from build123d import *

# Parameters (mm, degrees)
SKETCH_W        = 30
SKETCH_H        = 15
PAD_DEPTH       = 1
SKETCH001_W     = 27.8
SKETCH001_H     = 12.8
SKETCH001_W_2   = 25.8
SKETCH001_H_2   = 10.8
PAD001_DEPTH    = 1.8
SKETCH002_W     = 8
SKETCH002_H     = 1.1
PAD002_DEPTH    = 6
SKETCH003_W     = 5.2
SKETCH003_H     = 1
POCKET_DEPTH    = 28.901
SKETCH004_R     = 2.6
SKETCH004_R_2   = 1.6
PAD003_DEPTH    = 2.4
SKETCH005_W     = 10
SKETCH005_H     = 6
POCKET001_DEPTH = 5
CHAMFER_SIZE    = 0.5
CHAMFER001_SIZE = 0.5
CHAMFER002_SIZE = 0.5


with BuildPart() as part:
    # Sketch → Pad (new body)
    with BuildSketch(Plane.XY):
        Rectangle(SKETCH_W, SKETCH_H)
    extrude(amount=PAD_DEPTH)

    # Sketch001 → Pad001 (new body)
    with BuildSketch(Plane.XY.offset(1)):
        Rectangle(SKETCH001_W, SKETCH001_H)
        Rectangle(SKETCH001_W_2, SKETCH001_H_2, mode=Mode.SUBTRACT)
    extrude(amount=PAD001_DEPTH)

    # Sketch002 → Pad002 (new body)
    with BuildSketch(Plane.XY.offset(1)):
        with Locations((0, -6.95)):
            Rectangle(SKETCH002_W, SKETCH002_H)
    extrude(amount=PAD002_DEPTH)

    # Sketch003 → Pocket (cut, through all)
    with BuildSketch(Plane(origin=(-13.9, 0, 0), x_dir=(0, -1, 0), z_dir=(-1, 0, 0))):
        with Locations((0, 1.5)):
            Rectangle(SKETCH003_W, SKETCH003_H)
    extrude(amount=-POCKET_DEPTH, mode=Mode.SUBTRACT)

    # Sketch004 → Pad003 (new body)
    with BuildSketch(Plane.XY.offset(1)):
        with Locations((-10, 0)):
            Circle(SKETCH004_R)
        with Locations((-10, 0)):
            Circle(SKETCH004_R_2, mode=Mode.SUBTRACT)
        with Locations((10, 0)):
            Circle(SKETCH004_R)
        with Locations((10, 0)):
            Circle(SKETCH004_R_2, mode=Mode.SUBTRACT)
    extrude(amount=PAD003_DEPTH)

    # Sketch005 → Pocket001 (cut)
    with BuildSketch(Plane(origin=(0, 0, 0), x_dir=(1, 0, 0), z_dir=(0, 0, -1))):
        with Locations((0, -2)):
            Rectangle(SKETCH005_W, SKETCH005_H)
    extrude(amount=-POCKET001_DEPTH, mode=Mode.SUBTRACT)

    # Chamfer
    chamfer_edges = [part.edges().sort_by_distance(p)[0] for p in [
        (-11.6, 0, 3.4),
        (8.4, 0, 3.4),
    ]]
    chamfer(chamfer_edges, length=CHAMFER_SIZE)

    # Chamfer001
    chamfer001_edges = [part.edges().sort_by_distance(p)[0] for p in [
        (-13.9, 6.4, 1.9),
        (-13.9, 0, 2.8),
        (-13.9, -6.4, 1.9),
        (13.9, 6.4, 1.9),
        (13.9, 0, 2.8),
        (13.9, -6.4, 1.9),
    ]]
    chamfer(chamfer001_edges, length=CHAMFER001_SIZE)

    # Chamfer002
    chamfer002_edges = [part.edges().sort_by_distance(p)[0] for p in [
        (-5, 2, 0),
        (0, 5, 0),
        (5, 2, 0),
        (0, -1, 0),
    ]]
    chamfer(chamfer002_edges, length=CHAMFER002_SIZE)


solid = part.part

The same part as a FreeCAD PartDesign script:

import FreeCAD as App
import Part
import Sketcher
from FreeCAD import Vector


def edges_at(feature, points):
    """Names of the edges that pass closest to the given points."""
    edges = feature.Shape.Edges
    near = lambda p: min(range(len(edges)), key=lambda i: edges[i].distToShape(Part.Vertex(*p))[0])
    return sorted({f"Edge{near(p) + 1}" for p in points})


def add_polygon(sketch, points):
    """Adds a closed chain of lines whose ends are joined by coincident constraints."""
    first, n = sketch.GeometryCount, len(points)
    for a, b in zip(points, points[1:] + points[:1]):
        sketch.addGeometry(Part.LineSegment(App.Vector(*a, 0), App.Vector(*b, 0)), False)
    for i in range(n):
        sketch.addConstraint(Sketcher.Constraint("Coincident", first + i, 2, first + (i + 1) % n, 1))

doc = App.newDocument("Part")
body = doc.addObject("PartDesign::Body", "Body")

# Sketch on XY plane
sketch1 = doc.addObject("Sketcher::SketchObject", "Sketch")
body.addObject(sketch1)
sketch1.AttachmentSupport = (doc.XY_Plane, [""])
sketch1.MapMode = "FlatFace"
add_polygon(sketch1, [(-15, 8), (-15, -8), (15, -8), (15, 8)])  # lines 0-3
sketch1.addConstraint([
    Sketcher.Constraint("Vertical", 0),
    Sketcher.Constraint("Horizontal", 1),
    Sketcher.Constraint("Vertical", 2),
    Sketcher.Constraint("Horizontal", 3),
    Sketcher.Constraint("Symmetric", 0, 2, 2, 2, -1, 1),
    Sketcher.Constraint("DistanceX", 1, 1, 1, 2, 30.0),
    Sketcher.Constraint("DistanceY", 0, 2, 0, 1, 15.0),
])
pad1 = doc.addObject("PartDesign::Pad", "Pad")
body.addObject(pad1)
pad1.Profile = sketch1
pad1.Length = 1

# Sketch on XY plane
sketch2 = doc.addObject("Sketcher::SketchObject", "Sketch001")
body.addObject(sketch2)
sketch2.AttachmentSupport = (doc.XY_Plane, [""])
sketch2.MapMode = "FlatFace"
sketch2.AttachmentOffset = App.Placement(Vector(0, 0, 1), App.Rotation())
add_polygon(sketch2, [(-14, 6), (-14, -6), (14, -6), (14, 6)])  # lines 0-3
add_polygon(sketch2, [(13, -5), (-13, -5), (-13, 5), (13, 5)])  # lines 4-7
sketch2.addConstraint([
    Sketcher.Constraint("Vertical", 0),
    Sketcher.Constraint("Horizontal", 1),
    Sketcher.Constraint("Vertical", 2),
    Sketcher.Constraint("Horizontal", 3),
    Sketcher.Constraint("Horizontal", 4),
    Sketcher.Constraint("Vertical", 5),
    Sketcher.Constraint("Horizontal", 6),
    Sketcher.Constraint("Vertical", 7),
    Sketcher.Constraint("Symmetric", 0, 2, 2, 2, -1, 1),
    Sketcher.Constraint("Symmetric", 4, 2, 6, 2, -1, 1),
    Sketcher.Constraint("DistanceX", 1, 1, 1, 2, 27.8),
    Sketcher.Constraint("DistanceX", 4, 2, 4, 1, 25.8),
    Sketcher.Constraint("DistanceY", 0, 2, 0, 1, 12.8),
    Sketcher.Constraint("DistanceY", 5, 1, 5, 2, 10.8),
])
pad2 = doc.addObject("PartDesign::Pad", "Pad001")
body.addObject(pad2)
pad2.Profile = sketch2
pad2.Length = 1.8

# Sketch on XY plane
sketch3 = doc.addObject("Sketcher::SketchObject", "Sketch002")
body.addObject(sketch3)
sketch3.AttachmentSupport = (doc.XY_Plane, [""])
sketch3.MapMode = "FlatFace"
sketch3.AttachmentOffset = App.Placement(Vector(0, 0, 1), App.Rotation())
add_polygon(sketch3, [(-4, -6.4), (-4, -7.5), (4, -7.5), (4, -6.4)])  # lines 0-3
sketch3.addConstraint([
    Sketcher.Constraint("Vertical", 0),
    Sketcher.Constraint("Horizontal", 1),
    Sketcher.Constraint("Vertical", 2),
    Sketcher.Constraint("Horizontal", 3),
    Sketcher.Constraint("DistanceX", 1, 1, 1, 2, 8.0),
    Sketcher.Constraint("DistanceY", 0, 2, 0, 1, 1.1),
    Sketcher.Constraint("DistanceX", 0, 2, -1, 1, 4.0),
    Sketcher.Constraint("DistanceY", 0, 2, -1, 1, 7.5),
])
pad3 = doc.addObject("PartDesign::Pad", "Pad002")
body.addObject(pad3)
pad3.Profile = sketch3
pad3.Length = 6

# Sketch on YZ plane
sketch4 = doc.addObject("Sketcher::SketchObject", "Sketch003")
body.addObject(sketch4)
sketch4.AttachmentSupport = (doc.YZ_Plane, [""])
sketch4.MapMode = "FlatFace"
sketch4.AttachmentOffset = App.Placement(Vector(0, 0, -13.9), App.Rotation())
add_polygon(sketch4, [(2.6, 2), (2.6, 1), (-2.6, 1), (-2.6, 2)])  # lines 0-3
sketch4.addConstraint([
    Sketcher.Constraint("Vertical", 0),
    Sketcher.Constraint("Horizontal", 1),
    Sketcher.Constraint("Vertical", 2),
    Sketcher.Constraint("Horizontal", 3),
    Sketcher.Constraint("DistanceY", 0, 2, 0, 1, 1.0),
    Sketcher.Constraint("DistanceX", 1, 2, 1, 1, 5.2),
    Sketcher.Constraint("DistanceY", -1, 1, 0, 2, 1.0),
    Sketcher.Constraint("DistanceX", -1, 1, 0, 2, 2.6),
])
pocket1 = doc.addObject("PartDesign::Pocket", "Pocket")
body.addObject(pocket1)
pocket1.Profile = sketch4
pocket1.Type = "ThroughAll"
pocket1.Reversed = True

# Sketch on XY plane
sketch5 = doc.addObject("Sketcher::SketchObject", "Sketch004")
body.addObject(sketch5)
sketch5.AttachmentSupport = (doc.XY_Plane, [""])
sketch5.MapMode = "FlatFace"
sketch5.AttachmentOffset = App.Placement(Vector(0, 0, 1), App.Rotation())
sketch5.addGeometry([
    Part.Circle(Vector(-10, 0, 0), Vector(0, 0, 1), 2.6),
    Part.Circle(Vector(-10, 0, 0), Vector(0, 0, 1), 1.6),
    Part.Circle(Vector(10, 0, 0), Vector(0, 0, 1), 2.6),
    Part.Circle(Vector(10, 0, 0), Vector(0, 0, 1), 1.6),
], False)
sketch5.addConstraint([
    Sketcher.Constraint("Coincident", 1, 3, 0, 3),
    Sketcher.Constraint("Coincident", 3, 3, 2, 3),
    Sketcher.Constraint("Equal", 0, 2),
    Sketcher.Constraint("Equal", 1, 3),
    Sketcher.Constraint("Symmetric", 0, 3, 2, 3, -1, 1),
    Sketcher.Constraint("PointOnObject", 0, 3, -1),
    Sketcher.Constraint("Diameter", 0, 5.2),
    Sketcher.Constraint("Diameter", 1, 3.2),
    Sketcher.Constraint("DistanceX", 0, 3, -1, 1, 10.0),
])
pad4 = doc.addObject("PartDesign::Pad", "Pad003")
body.addObject(pad4)
pad4.Profile = sketch5
pad4.Length = 2.4

# Sketch on XY plane
sketch6 = doc.addObject("Sketcher::SketchObject", "Sketch005")
body.addObject(sketch6)
sketch6.AttachmentSupport = (doc.XY_Plane, [""])
sketch6.MapMode = "FlatFace"
add_polygon(sketch6, [(-5, -1), (-5, 5), (5, 5), (5, -1)])  # lines 0-3
sketch6.addConstraint([
    Sketcher.Constraint("Vertical", 0),
    Sketcher.Constraint("Horizontal", 1),
    Sketcher.Constraint("Vertical", 2),
    Sketcher.Constraint("Horizontal", 3),
    Sketcher.Constraint("DistanceX", 1, 1, 1, 2, 10.0),
    Sketcher.Constraint("DistanceY", 0, 1, 0, 2, 6.0),
    Sketcher.Constraint("DistanceX", 0, 2, -1, 1, 5.0),
    Sketcher.Constraint("DistanceY", -1, 1, 0, 2, 5.0),
])
pocket2 = doc.addObject("PartDesign::Pocket", "Pocket001")
body.addObject(pocket2)
pocket2.Profile = sketch6
pocket2.Length = 5
pocket2.Reversed = True
doc.recompute()

chamfer = doc.addObject("PartDesign::Chamfer", "Chamfer")
body.addObject(chamfer)
chamfer.Base = (pocket2, edges_at(pocket2, [(-11.6, 0, 3.4), (8.4, 0, 3.4)]))
chamfer.Size = 0.5
doc.recompute()

chamfer2 = doc.addObject("PartDesign::Chamfer", "Chamfer001")
body.addObject(chamfer2)
chamfer2.Base = (chamfer, edges_at(chamfer, [
    (-13.9, 6.4, 1.9),
    (-13.9, 0, 2.8),
    (-13.9, -6.4, 1.9),
    (13.9, 6.4, 1.9),
    (13.9, 0, 2.8),
    (13.9, -6.4, 1.9),
]))
chamfer2.Size = 0.5
doc.recompute()

chamfer3 = doc.addObject("PartDesign::Chamfer", "Chamfer002")
body.addObject(chamfer3)
chamfer3.Base = (chamfer2, edges_at(chamfer2, [
    (-5, 2, 0),
    (0, 5, 0),
    (5, 2, 0),
    (0, -1, 0),
]))
chamfer3.Size = 0.5

doc.recompute()
